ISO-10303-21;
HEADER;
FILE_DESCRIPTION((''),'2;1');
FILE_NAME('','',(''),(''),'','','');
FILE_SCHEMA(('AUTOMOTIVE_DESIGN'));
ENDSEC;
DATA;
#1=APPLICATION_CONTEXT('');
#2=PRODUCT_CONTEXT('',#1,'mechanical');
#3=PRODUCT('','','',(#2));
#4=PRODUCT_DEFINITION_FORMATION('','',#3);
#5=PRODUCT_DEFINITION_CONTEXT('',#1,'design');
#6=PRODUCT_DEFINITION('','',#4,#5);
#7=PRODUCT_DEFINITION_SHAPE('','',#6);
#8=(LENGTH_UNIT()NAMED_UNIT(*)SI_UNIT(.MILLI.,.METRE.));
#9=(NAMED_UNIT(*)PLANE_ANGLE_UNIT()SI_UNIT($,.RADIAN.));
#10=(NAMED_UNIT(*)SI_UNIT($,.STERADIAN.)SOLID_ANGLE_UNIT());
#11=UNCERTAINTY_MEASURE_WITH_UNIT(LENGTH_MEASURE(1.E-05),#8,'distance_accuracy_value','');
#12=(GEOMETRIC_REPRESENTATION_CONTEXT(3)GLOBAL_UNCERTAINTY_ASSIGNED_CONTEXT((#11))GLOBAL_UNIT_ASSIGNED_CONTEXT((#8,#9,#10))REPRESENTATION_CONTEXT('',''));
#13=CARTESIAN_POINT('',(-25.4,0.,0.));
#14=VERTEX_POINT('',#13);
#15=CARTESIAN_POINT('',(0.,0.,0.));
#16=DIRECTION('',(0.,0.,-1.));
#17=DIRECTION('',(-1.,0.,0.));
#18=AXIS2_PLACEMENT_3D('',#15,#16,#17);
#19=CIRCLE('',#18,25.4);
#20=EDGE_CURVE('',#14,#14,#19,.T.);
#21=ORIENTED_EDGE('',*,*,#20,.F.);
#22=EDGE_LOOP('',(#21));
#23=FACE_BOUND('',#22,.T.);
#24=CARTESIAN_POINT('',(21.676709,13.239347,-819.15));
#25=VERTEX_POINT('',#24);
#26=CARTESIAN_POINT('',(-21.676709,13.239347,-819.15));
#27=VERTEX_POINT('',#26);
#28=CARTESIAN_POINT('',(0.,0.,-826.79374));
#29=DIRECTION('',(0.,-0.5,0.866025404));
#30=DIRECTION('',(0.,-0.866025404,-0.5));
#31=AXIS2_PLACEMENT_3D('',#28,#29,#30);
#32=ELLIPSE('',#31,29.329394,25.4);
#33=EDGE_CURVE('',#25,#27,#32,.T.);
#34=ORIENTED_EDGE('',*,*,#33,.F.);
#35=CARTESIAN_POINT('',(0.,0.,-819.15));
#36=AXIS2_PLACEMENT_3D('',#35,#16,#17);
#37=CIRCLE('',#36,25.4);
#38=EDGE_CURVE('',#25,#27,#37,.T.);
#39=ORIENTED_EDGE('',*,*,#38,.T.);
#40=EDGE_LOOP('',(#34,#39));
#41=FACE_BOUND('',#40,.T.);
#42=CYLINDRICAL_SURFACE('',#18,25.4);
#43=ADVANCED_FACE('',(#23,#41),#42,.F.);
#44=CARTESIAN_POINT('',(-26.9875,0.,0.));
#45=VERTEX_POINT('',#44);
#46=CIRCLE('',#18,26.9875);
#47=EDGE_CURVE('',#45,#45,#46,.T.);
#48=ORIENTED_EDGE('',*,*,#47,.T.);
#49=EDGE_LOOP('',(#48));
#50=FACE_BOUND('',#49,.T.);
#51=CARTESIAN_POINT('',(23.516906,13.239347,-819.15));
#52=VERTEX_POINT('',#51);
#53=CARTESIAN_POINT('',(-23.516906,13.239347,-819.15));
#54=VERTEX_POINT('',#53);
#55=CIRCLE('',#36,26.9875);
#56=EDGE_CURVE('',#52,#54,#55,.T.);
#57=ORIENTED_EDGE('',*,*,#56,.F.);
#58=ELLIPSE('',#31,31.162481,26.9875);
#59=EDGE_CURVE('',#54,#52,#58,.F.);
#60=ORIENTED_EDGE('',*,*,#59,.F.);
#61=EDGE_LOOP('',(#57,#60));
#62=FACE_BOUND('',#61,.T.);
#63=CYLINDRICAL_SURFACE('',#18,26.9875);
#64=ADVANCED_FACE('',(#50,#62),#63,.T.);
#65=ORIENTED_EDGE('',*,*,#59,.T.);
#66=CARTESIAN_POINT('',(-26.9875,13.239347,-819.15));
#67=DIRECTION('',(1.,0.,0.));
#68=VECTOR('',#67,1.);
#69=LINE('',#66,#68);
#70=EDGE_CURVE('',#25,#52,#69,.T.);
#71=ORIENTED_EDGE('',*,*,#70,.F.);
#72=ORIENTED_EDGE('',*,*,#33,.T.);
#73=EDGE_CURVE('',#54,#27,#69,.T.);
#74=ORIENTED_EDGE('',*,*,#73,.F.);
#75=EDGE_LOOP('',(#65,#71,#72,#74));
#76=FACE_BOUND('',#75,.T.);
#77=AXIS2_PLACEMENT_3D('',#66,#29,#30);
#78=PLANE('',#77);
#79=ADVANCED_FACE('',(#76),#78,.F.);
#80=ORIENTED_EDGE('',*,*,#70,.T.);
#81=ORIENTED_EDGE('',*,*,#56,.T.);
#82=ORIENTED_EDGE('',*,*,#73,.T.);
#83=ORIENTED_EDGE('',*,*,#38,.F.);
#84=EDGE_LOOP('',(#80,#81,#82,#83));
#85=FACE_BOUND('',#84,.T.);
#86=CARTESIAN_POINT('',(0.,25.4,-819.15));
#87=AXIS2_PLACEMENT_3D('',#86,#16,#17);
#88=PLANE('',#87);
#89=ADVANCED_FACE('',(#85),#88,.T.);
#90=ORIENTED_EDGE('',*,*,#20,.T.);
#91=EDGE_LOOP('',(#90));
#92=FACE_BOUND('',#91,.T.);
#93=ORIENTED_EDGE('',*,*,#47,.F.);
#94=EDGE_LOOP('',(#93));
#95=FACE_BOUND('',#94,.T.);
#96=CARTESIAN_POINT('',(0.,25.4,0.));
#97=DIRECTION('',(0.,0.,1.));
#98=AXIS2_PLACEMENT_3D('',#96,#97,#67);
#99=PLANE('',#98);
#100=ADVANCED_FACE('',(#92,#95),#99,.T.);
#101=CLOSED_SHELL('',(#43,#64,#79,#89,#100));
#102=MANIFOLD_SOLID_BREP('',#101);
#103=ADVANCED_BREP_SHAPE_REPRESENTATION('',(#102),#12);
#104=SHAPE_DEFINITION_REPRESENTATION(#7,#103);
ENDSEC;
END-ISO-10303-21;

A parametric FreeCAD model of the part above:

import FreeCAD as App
import Part
import Sketcher
Q = App.Units.Quantity


def add_polygon(sketch, points):
    """Adds a closed chain of lines whose ends are joined by coincident constraints."""
    first, n = sketch.GeometryCount, len(points)
    for a, b in zip(points, points[1:] + points[:1]):
        sketch.addGeometry(Part.LineSegment(App.Vector(*a, 0), App.Vector(*b, 0)), False)
    for i in range(n):
        sketch.addConstraint(Sketcher.Constraint("Coincident", first + i, 2, first + (i + 1) % n, 1))

doc = App.newDocument("Part")
body = doc.addObject("PartDesign::Body", "Body")

# Sketch on YZ plane
sketch1 = body.newObject("Sketcher::SketchObject", "Sketch")
sketch1.AttachmentSupport = (doc.getObject("YZ_Plane"), [""])
sketch1.MapMode = "FlatFace"
add_polygon(sketch1, [(26.9875, 0), (25.4, 0), (25.4, -819.15), (26.9875, -819.15)])  # lines 0-3
sketch1.addConstraint(Sketcher.Constraint("Horizontal", 0))
sketch1.addConstraint(Sketcher.Constraint("Vertical", 1))
sketch1.addConstraint(Sketcher.Constraint("Horizontal", 2))
sketch1.addConstraint(Sketcher.Constraint("Vertical", 3))
sketch1.addConstraint(Sketcher.Constraint("PointOnObject", 0, 2, -1))
sketch1.addConstraint(Sketcher.Constraint("DistanceX", -1, 1, 0, 2, Q("1 in")))
sketch1.addConstraint(Sketcher.Constraint("DistanceY", 1, 2, 1, 1, Q("32.25 in")))
sketch1.addConstraint(Sketcher.Constraint("DistanceX", 0, 2, 0, 1, Q("0.0625 in")))
revolution = body.newObject("PartDesign::Revolution", "Revolution")
revolution.Profile = sketch1
revolution.ReferenceAxis = (sketch1, ["V_Axis"])
revolution.Angle = 360

# Sketch on YZ plane
sketch2 = body.newObject("Sketcher::SketchObject", "Sketch001")
sketch2.AttachmentSupport = (doc.getObject("YZ_Plane"), [""])
sketch2.MapMode = "FlatFace"
add_polygon(sketch2, [(26.9875, -811.2125), (13.239347, -819.15), (26.9875, -819.15)])  # lines 0-2
sketch2.addConstraint(Sketcher.Constraint("Horizontal", 1))
sketch2.addConstraint(Sketcher.Constraint("Vertical", 2))
sketch2.addConstraint(Sketcher.Constraint("Angle", 0, Q("-150 deg")))
sketch2.addConstraint(Sketcher.Constraint("DistanceY", 2, 1, 2, 2, Q("0.3125 in")))
sketch2.addConstraint(Sketcher.Constraint("DistanceY", 0, 2, -1, 1, Q("32.25 in")))
sketch2.addConstraint(Sketcher.Constraint("DistanceX", -1, 1, 1, 2, Q("1.0625 in")))
pocket1 = body.newObject("PartDesign::Pocket", "Pocket")
pocket1.Profile = sketch2
pocket1.Type = "ThroughAll"
pocket1.Midplane = True

doc.recompute()
